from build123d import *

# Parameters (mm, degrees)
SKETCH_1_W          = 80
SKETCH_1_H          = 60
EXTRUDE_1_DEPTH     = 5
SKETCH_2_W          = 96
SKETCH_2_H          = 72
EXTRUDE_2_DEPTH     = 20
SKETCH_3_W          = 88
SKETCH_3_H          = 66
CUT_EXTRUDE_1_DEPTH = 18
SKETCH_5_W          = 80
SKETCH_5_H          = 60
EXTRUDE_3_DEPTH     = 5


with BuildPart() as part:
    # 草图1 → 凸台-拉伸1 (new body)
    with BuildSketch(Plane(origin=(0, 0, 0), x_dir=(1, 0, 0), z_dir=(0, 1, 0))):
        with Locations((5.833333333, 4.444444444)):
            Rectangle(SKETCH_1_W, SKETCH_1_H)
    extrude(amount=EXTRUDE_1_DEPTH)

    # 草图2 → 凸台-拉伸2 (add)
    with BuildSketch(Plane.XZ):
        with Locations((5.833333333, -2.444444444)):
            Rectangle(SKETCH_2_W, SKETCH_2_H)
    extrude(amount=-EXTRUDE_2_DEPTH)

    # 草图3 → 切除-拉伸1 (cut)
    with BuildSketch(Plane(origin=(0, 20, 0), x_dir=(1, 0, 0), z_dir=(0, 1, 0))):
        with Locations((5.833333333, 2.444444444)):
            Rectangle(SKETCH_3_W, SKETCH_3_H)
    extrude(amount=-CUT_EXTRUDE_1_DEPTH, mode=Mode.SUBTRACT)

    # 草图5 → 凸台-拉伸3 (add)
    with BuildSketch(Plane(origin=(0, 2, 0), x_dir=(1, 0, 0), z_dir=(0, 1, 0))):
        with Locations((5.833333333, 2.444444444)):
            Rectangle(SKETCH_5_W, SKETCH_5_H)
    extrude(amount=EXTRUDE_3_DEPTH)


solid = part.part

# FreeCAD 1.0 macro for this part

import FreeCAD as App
import Part
import Sketcher
Q = App.Units.Quantity


def add_polygon(sketch, points):
    """Adds a closed chain of lines whose ends are joined by coincident constraints."""
    first, n = sketch.GeometryCount, len(points)
    for a, b in zip(points, points[1:] + points[:1]):
        sketch.addGeometry(Part.LineSegment(App.Vector(*a, 0), App.Vector(*b, 0)), False)
    for i in range(n):
        sketch.addConstraint(Sketcher.Constraint("Coincident", first + i, 2, first + (i + 1) % n, 1))

doc = App.newDocument("Part")
params = doc.addObject("Spreadsheet::Sheet", "Params")
for row, (alias, value) in enumerate([
    ("sketch1_width", "80 mm"),
    ("sketch1_height", "60 mm"),
    ("pad1_length", "5 mm"),
    ("sketch2_width", "96 mm"),
    ("sketch2_height", "72 mm"),
    ("pad2_length", "20 mm"),
    ("sketch3_width", "88 mm"),
    ("sketch3_height", "66 mm"),
    ("pocket1_length", "18 mm"),
    ("sketch4_width", "80 mm"),
    ("sketch4_height", "60 mm"),
    ("pad3_length", "5 mm"),
], start=1):
    params.set(f"A{row}", alias)
    params.set(f"B{row}", "=" + value)
    params.setAlias(f"B{row}", alias)

body = doc.addObject("PartDesign::Body", "Body")

sketch1 = doc.addObject("Sketcher::SketchObject", "Sketch")
body.addObject(sketch1)
sketch1.AttachmentSupport = (doc.XZ_Plane, [""])
sketch1.MapMode = "FlatFace"
add_polygon(sketch1, [(-34, -34), (-34, 26), (46, 26), (46, -34)])
sketch1.addConstraint([
    Sketcher.Constraint("Vertical", 0),
    Sketcher.Constraint("Horizontal", 1),
    Sketcher.Constraint("Vertical", 2),
    Sketcher.Constraint("Horizontal", 3),
    Sketcher.Constraint("DistanceX", 1, 1, 1, 2, Q("80 mm")),
    Sketcher.Constraint("DistanceY", 0, 1, 0, 2, Q("60 mm")),
    Sketcher.Constraint("DistanceX", 0, 2, -1, 1, Q("34.166667 mm")),
    Sketcher.Constraint("DistanceY", -1, 1, 0, 2, Q("25.555556 mm")),
])
sketch1.setExpression("Constraints[8]", "Params.sketch1_width")
sketch1.setExpression("Constraints[9]", "Params.sketch1_height")
pad1 = doc.addObject("PartDesign::Pad", "Pad")
body.addObject(pad1)
pad1.Profile = sketch1
pad1.setExpression("Length", "Params.pad1_length")
pad1.Reversed = True

sketch2 = doc.addObject("Sketcher::SketchObject", "Sketch001")
body.addObject(sketch2)
sketch2.AttachmentSupport = (doc.XZ_Plane, [""])
sketch2.MapMode = "FlatFace"
add_polygon(sketch2, [(-42, 34), (-42, -38), (54, -38), (54, 34)])
sketch2.addConstraint([
    Sketcher.Constraint("Vertical", 0),
    Sketcher.Constraint("Horizontal", 1),
    Sketcher.Constraint("Vertical", 2),
    Sketcher.Constraint("Horizontal", 3),
    Sketcher.Constraint("DistanceX", 1, 1, 1, 2, Q("96 mm")),
    Sketcher.Constraint("DistanceY", 0, 2, 0, 1, Q("72 mm")),
    Sketcher.Constraint("DistanceX", 0, 2, -1, 1, Q("42.166667 mm")),
    Sketcher.Constraint("DistanceY", 0, 2, -1, 1, Q("38.444444 mm")),
])
sketch2.setExpression("Constraints[8]", "Params.sketch2_width")
sketch2.setExpression("Constraints[9]", "Params.sketch2_height")
pad2 = doc.addObject("PartDesign::Pad", "Pad001")
body.addObject(pad2)
pad2.Profile = sketch2
pad2.setExpression("Length", "Params.pad2_length")
pad2.Reversed = True

sketch3 = doc.addObject("Sketcher::SketchObject", "Sketch002")
body.addObject(sketch3)
sketch3.AttachmentSupport = (doc.XZ_Plane, [""])
sketch3.MapMode = "FlatFace"
sketch3.AttachmentOffset = App.Placement(App.Vector(0, 0, -20), App.Rotation())
add_polygon(sketch3, [(-38, -35), (-38, 31), (50, 31), (50, -35)])
sketch3.addConstraint([
    Sketcher.Constraint("Vertical", 0),
    Sketcher.Constraint("Horizontal", 1),
    Sketcher.Constraint("Vertical", 2),
    Sketcher.Constraint("Horizontal", 3),
    Sketcher.Constraint("DistanceX", 1, 1, 1, 2, Q("88 mm")),
    Sketcher.Constraint("DistanceY", 0, 1, 0, 2, Q("66 mm")),
    Sketcher.Constraint("DistanceX", 0, 2, -1, 1, Q("38.166667 mm")),
    Sketcher.Constraint("DistanceY", -1, 1, 0, 2, Q("30.555556 mm")),
])
sketch3.setExpression("Constraints[8]", "Params.sketch3_width")
sketch3.setExpression("Constraints[9]", "Params.sketch3_height")
pocket1 = doc.addObject("PartDesign::Pocket", "Pocket")
body.addObject(pocket1)
pocket1.Profile = sketch3
pocket1.setExpression("Length", "Params.pocket1_length")
pocket1.Reversed = True

sketch4 = doc.addObject("Sketcher::SketchObject", "Sketch003")
body.addObject(sketch4)
sketch4.AttachmentSupport = (doc.XZ_Plane, [""])
sketch4.MapMode = "FlatFace"
sketch4.AttachmentOffset = App.Placement(App.Vector(0, 0, -2), App.Rotation())
add_polygon(sketch4, [(-34, -32), (-34, 28), (46, 28), (46, -32)])
sketch4.addConstraint([
    Sketcher.Constraint("Vertical", 0),
    Sketcher.Constraint("Horizontal", 1),
    Sketcher.Constraint("Vertical", 2),
    Sketcher.Constraint("Horizontal", 3),
    Sketcher.Constraint("DistanceX", 1, 1, 1, 2, Q("80 mm")),
    Sketcher.Constraint("DistanceY", 0, 1, 0, 2, Q("60 mm")),
    Sketcher.Constraint("DistanceX", 0, 2, -1, 1, Q("34.166667 mm")),
    Sketcher.Constraint("DistanceY", -1, 1, 0, 2, Q("27.555556 mm")),
])
sketch4.setExpression("Constraints[8]", "Params.sketch4_width")
sketch4.setExpression("Constraints[9]", "Params.sketch4_height")
pad3 = doc.addObject("PartDesign::Pad", "Pad002")
body.addObject(pad3)
pad3.Profile = sketch4
pad3.setExpression("Length", "Params.pad3_length")
pad3.Reversed = True

doc.recompute()
